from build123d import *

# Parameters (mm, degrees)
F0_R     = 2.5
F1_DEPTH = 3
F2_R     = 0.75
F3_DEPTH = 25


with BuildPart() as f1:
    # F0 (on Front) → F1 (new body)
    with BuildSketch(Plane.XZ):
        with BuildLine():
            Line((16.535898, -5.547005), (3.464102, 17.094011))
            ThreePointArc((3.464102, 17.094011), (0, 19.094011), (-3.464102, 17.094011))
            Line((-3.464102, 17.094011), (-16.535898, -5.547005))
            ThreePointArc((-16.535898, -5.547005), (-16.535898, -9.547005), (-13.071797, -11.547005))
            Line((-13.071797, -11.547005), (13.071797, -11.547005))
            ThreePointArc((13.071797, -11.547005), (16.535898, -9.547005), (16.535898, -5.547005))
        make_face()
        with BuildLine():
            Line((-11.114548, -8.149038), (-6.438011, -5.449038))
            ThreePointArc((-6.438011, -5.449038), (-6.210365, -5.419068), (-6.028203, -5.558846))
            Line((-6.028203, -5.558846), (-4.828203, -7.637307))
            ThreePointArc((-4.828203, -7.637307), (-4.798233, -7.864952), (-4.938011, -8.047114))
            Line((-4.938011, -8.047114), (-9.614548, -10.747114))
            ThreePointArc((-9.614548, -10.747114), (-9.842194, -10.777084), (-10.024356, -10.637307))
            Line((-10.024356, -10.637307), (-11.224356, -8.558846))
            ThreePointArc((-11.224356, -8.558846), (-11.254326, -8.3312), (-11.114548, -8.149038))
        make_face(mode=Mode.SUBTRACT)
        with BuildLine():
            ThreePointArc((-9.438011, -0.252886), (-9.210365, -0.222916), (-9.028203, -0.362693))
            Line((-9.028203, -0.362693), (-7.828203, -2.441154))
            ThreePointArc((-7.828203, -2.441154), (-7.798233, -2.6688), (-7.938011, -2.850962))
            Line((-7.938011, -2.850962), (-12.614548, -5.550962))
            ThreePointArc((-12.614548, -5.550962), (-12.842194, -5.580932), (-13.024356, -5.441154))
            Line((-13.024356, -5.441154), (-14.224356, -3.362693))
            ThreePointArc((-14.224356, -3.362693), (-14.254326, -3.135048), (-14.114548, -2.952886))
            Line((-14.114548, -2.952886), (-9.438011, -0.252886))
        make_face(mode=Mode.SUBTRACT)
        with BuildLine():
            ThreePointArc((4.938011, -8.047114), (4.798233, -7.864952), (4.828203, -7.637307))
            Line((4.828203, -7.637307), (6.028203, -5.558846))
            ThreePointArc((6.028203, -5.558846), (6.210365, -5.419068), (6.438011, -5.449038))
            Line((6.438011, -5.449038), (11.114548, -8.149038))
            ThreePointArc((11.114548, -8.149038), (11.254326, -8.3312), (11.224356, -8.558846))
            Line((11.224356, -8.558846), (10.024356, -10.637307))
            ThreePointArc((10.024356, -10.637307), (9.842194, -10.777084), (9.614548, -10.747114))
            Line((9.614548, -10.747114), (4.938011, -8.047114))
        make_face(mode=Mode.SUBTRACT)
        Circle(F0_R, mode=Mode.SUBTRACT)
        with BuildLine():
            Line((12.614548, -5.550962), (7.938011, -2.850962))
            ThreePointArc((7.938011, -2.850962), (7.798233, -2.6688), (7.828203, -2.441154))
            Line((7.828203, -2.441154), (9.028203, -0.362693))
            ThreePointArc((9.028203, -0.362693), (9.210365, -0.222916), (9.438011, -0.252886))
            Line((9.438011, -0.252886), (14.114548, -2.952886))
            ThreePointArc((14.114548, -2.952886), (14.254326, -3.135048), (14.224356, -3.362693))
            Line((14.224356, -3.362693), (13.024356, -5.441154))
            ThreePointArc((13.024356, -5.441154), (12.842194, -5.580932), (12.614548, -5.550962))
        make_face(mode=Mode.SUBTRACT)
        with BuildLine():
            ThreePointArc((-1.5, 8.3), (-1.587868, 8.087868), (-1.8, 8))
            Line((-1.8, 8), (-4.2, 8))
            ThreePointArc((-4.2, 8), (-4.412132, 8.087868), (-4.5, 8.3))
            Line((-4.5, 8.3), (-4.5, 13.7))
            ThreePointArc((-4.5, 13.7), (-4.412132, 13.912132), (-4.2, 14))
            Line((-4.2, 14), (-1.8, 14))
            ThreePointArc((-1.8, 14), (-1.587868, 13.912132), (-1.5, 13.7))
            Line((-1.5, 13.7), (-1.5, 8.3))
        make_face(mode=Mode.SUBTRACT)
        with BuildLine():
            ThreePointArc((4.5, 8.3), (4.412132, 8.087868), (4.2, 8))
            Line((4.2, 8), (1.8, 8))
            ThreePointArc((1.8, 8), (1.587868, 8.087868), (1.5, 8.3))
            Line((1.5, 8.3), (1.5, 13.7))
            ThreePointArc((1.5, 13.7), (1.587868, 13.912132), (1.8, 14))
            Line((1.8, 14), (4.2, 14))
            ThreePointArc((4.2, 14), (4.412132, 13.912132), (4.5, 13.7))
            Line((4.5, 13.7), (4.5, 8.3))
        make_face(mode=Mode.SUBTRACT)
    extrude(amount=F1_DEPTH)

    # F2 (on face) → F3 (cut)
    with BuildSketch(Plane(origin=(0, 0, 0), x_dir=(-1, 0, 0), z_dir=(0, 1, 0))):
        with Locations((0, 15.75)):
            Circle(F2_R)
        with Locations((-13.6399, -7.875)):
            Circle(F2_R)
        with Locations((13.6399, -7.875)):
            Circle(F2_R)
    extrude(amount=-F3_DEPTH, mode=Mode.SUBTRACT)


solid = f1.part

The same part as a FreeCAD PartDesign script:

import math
import FreeCAD as App
import Part
import Sketcher

V = App.Vector
Q = App.Units.Quantity

doc = App.newDocument("Part")
body = doc.addObject("PartDesign::Body", "Body")

sketch1 = body.newObject("Sketcher::SketchObject", "Sketch")
sketch1.AttachmentSupport = (doc.getObject("XZ_Plane"), [""])
sketch1.MapMode = "FlatFace"
sketch1.addGeometry([
    Part.LineSegment(V(16.54, -5.55, 0), V(3.46, 17.09, 0)),
    Part.ArcOfCircle(Part.Circle(V(0, 15.09, 0), V(0, 0, 1), 4), math.radians(30), math.radians(150)),
    Part.LineSegment(V(-3.46, 17.09, 0), V(-16.54, -5.55, 0)),
    Part.ArcOfCircle(Part.Circle(V(-13.07, -7.55, 0), V(0, 0, 1), 4), math.radians(150), math.radians(270)),
    Part.LineSegment(V(-13.07, -11.55, 0), V(13.07, -11.55, 0)),
    Part.ArcOfCircle(Part.Circle(V(13.07, -7.55, 0), V(0, 0, 1), 4), math.radians(-90), math.radians(30)),
    Part.ArcOfCircle(Part.Circle(V(-10.96, -8.41, 0), V(0, 0, 1), 0.3), math.radians(120), math.radians(210)),
    Part.LineSegment(V(-11.11, -8.15, 0), V(-6.44, -5.45, 0)),
    Part.ArcOfCircle(Part.Circle(V(-6.29, -5.71, 0), V(0, 0, 1), 0.3), math.radians(30), math.radians(120)),
    Part.LineSegment(V(-6.03, -5.56, 0), V(-4.83, -7.64, 0)),
    Part.ArcOfCircle(Part.Circle(V(-5.09, -7.79, 0), V(0, 0, 1), 0.3), math.radians(-60), math.radians(30)),
    Part.LineSegment(V(-4.94, -8.05, 0), V(-9.61, -10.75, 0)),
    Part.ArcOfCircle(Part.Circle(V(-9.76, -10.49, 0), V(0, 0, 1), 0.3), math.radians(-150), math.radians(-60)),
    Part.LineSegment(V(-10.02, -10.64, 0), V(-11.22, -8.56, 0)),
    Part.LineSegment(V(-14.11, -2.95, 0), V(-9.44, -0.25, 0)),
    Part.ArcOfCircle(Part.Circle(V(-9.29, -0.51, 0), V(0, 0, 1), 0.3), math.radians(30), math.radians(120)),
    Part.LineSegment(V(-9.03, -0.36, 0), V(-7.83, -2.44, 0)),
    Part.ArcOfCircle(Part.Circle(V(-8.09, -2.59, 0), V(0, 0, 1), 0.3), math.radians(-60), math.radians(30)),
    Part.LineSegment(V(-7.94, -2.85, 0), V(-12.61, -5.55, 0)),
    Part.ArcOfCircle(Part.Circle(V(-12.76, -5.29, 0), V(0, 0, 1), 0.3), math.radians(-150), math.radians(-60)),
    Part.LineSegment(V(-13.02, -5.44, 0), V(-14.22, -3.36, 0)),
    Part.ArcOfCircle(Part.Circle(V(-13.96, -3.21, 0), V(0, 0, 1), 0.3), math.radians(120), math.radians(210)),
    Part.LineSegment(V(9.61, -10.75, 0), V(4.94, -8.05, 0)),
    Part.ArcOfCircle(Part.Circle(V(5.09, -7.79, 0), V(0, 0, 1), 0.3), math.radians(150), math.radians(240)),
    Part.LineSegment(V(4.83, -7.64, 0), V(6.03, -5.56, 0)),
    Part.ArcOfCircle(Part.Circle(V(6.29, -5.71, 0), V(0, 0, 1), 0.3), math.radians(60), math.radians(150)),
    Part.LineSegment(V(6.44, -5.45, 0), V(11.11, -8.15, 0)),
    Part.ArcOfCircle(Part.Circle(V(10.96, -8.41, 0), V(0, 0, 1), 0.3), math.radians(-30), math.radians(60)),
    Part.LineSegment(V(11.22, -8.56, 0), V(10.02, -10.64, 0)),
    Part.ArcOfCircle(Part.Circle(V(9.76, -10.49, 0), V(0, 0, 1), 0.3), math.radians(-120), math.radians(-30)),
    Part.Circle(V(0, 0, 0), V(0, 0, 1), 2.5),
    Part.ArcOfCircle(Part.Circle(V(12.76, -5.29, 0), V(0, 0, 1), 0.3), math.radians(-120), math.radians(-30)),
    Part.LineSegment(V(12.61, -5.55, 0), V(7.94, -2.85, 0)),
    Part.ArcOfCircle(Part.Circle(V(8.09, -2.59, 0), V(0, 0, 1), 0.3), math.radians(150), math.radians(240)),
    Part.LineSegment(V(7.83, -2.44, 0), V(9.03, -0.36, 0)),
    Part.ArcOfCircle(Part.Circle(V(9.29, -0.51, 0), V(0, 0, 1), 0.3), math.radians(60), math.radians(150)),
    Part.LineSegment(V(9.44, -0.25, 0), V(14.11, -2.95, 0)),
    Part.ArcOfCircle(Part.Circle(V(13.96, -3.21, 0), V(0, 0, 1), 0.3), math.radians(-30), math.radians(60)),
    Part.LineSegment(V(14.22, -3.36, 0), V(13.02, -5.44, 0)),
    Part.LineSegment(V(-1.5, 13.7, 0), V(-1.5, 8.3, 0)),
    Part.ArcOfCircle(Part.Circle(V(-1.8, 8.3, 0), V(0, 0, 1), 0.3), math.radians(-90), math.radians(0)),
    Part.LineSegment(V(-1.8, 8, 0), V(-4.2, 8, 0)),
    Part.ArcOfCircle(Part.Circle(V(-4.2, 8.3, 0), V(0, 0, 1), 0.3), math.radians(-180), math.radians(-90)),
    Part.LineSegment(V(-4.5, 8.3, 0), V(-4.5, 13.7, 0)),
    Part.ArcOfCircle(Part.Circle(V(-4.2, 13.7, 0), V(0, 0, 1), 0.3), math.radians(90), math.radians(180)),
    Part.LineSegment(V(-4.2, 14, 0), V(-1.8, 14, 0)),
    Part.ArcOfCircle(Part.Circle(V(-1.8, 13.7, 0), V(0, 0, 1), 0.3), math.radians(0), math.radians(90)),
    Part.LineSegment(V(4.5, 13.7, 0), V(4.5, 8.3, 0)),
    Part.ArcOfCircle(Part.Circle(V(4.2, 8.3, 0), V(0, 0, 1), 0.3), math.radians(-90), math.radians(0)),
    Part.LineSegment(V(4.2, 8, 0), V(1.8, 8, 0)),
    Part.ArcOfCircle(Part.Circle(V(1.8, 8.3, 0), V(0, 0, 1), 0.3), math.radians(-180), math.radians(-90)),
    Part.LineSegment(V(1.5, 8.3, 0), V(1.5, 13.7, 0)),
    Part.ArcOfCircle(Part.Circle(V(1.8, 13.7, 0), V(0, 0, 1), 0.3), math.radians(90), math.radians(180)),
    Part.LineSegment(V(1.8, 14, 0), V(4.2, 14, 0)),
    Part.ArcOfCircle(Part.Circle(V(4.2, 13.7, 0), V(0, 0, 1), 0.3), math.radians(0), math.radians(90)),
], False)
sketch1.addConstraint([
    Sketcher.Constraint("Tangent", 0, 2, 1, 1),
    Sketcher.Constraint("Tangent", 1, 2, 2, 1),
    Sketcher.Constraint("Tangent", 2, 2, 3, 1),
    Sketcher.Constraint("Tangent", 3, 2, 4, 1),
    Sketcher.Constraint("Tangent", 4, 2, 5, 1),
    Sketcher.Constraint("Tangent", 5, 2, 0, 1),
    Sketcher.Constraint("Tangent", 6, 1, 7, 1),
    Sketcher.Constraint("Tangent", 7, 2, 8, 2),
    Sketcher.Constraint("Tangent", 8, 1, 9, 1),
    Sketcher.Constraint("Tangent", 9, 2, 10, 2),
    Sketcher.Constraint("Tangent", 10, 1, 11, 1),
    Sketcher.Constraint("Tangent", 11, 2, 12, 2),
    Sketcher.Constraint("Coincident", 12, 1, 13, 1),
    Sketcher.Constraint("Tangent", 13, 2, 6, 2),
    Sketcher.Constraint("Tangent", 14, 2, 15, 2),
    Sketcher.Constraint("Coincident", 15, 1, 16, 1),
    Sketcher.Constraint("Tangent", 16, 2, 17, 2),
    Sketcher.Constraint("Tangent", 17, 1, 18, 1),
    Sketcher.Constraint("Tangent", 18, 2, 19, 2),
    Sketcher.Constraint("Tangent", 19, 1, 20, 1),
    Sketcher.Constraint("Tangent", 20, 2, 21, 2),
    Sketcher.Constraint("Tangent", 21, 1, 14, 1),
    Sketcher.Constraint("Tangent", 22, 2, 23, 2),
    Sketcher.Constraint("Tangent", 23, 1, 24, 1),
    Sketcher.Constraint("Tangent", 24, 2, 25, 2),
    Sketcher.Constraint("Tangent", 25, 1, 26, 1),
    Sketcher.Constraint("Tangent", 26, 2, 27, 2),
    Sketcher.Constraint("Tangent", 27, 1, 28, 1),
    Sketcher.Constraint("Coincident", 28, 2, 29, 2),
    Sketcher.Constraint("Tangent", 29, 1, 22, 1),
    Sketcher.Constraint("Tangent", 31, 1, 32, 1),
    Sketcher.Constraint("Tangent", 32, 2, 33, 2),
    Sketcher.Constraint("Tangent", 33, 1, 34, 1),
    Sketcher.Constraint("Coincident", 34, 2, 35, 2),
    Sketcher.Constraint("Tangent", 35, 1, 36, 1),
    Sketcher.Constraint("Tangent", 36, 2, 37, 2),
    Sketcher.Constraint("Tangent", 37, 1, 38, 1),
    Sketcher.Constraint("Tangent", 38, 2, 31, 2),
    Sketcher.Constraint("Tangent", 39, 2, 40, 2),
    Sketcher.Constraint("Tangent", 40, 1, 41, 1),
    Sketcher.Constraint("Tangent", 41, 2, 42, 2),
    Sketcher.Constraint("Tangent", 42, 1, 43, 1),
    Sketcher.Constraint("Tangent", 43, 2, 44, 2),
    Sketcher.Constraint("Tangent", 44, 1, 45, 1),
    Sketcher.Constraint("Tangent", 45, 2, 46, 2),
    Sketcher.Constraint("Tangent", 46, 1, 39, 1),
    Sketcher.Constraint("Tangent", 47, 2, 48, 2),
    Sketcher.Constraint("Tangent", 48, 1, 49, 1),
    Sketcher.Constraint("Tangent", 49, 2, 50, 2),
    Sketcher.Constraint("Tangent", 50, 1, 51, 1),
    Sketcher.Constraint("Tangent", 51, 2, 52, 2),
    Sketcher.Constraint("Tangent", 52, 1, 53, 1),
    Sketcher.Constraint("Tangent", 53, 2, 54, 2),
    Sketcher.Constraint("Tangent", 54, 1, 47, 1),
    Sketcher.Constraint("Horizontal", 4),
    Sketcher.Constraint("Vertical", 39),
    Sketcher.Constraint("Horizontal", 41),
    Sketcher.Constraint("Vertical", 43),
    Sketcher.Constraint("Horizontal", 45),
    Sketcher.Constraint("Vertical", 47),
    Sketcher.Constraint("Horizontal", 49),
    Sketcher.Constraint("Vertical", 51),
    Sketcher.Constraint("Horizontal", 53),
    Sketcher.Constraint("Coincident", 30, 3, -1, 1),
    Sketcher.Constraint("Equal", 1, 3),
    Sketcher.Constraint("Equal", 3, 5),
    Sketcher.Constraint("Equal", 6, 8),
    Sketcher.Constraint("Equal", 8, 10),
    Sketcher.Constraint("Equal", 10, 12),
    Sketcher.Constraint("Equal", 12, 15),
    Sketcher.Constraint("Equal", 15, 17),
    Sketcher.Constraint("Equal", 17, 19),
    Sketcher.Constraint("Equal", 19, 21),
    Sketcher.Constraint("Equal", 21, 23),
    Sketcher.Constraint("Equal", 23, 25),
    Sketcher.Constraint("Equal", 25, 27),
    Sketcher.Constraint("Equal", 27, 29),
    Sketcher.Constraint("Equal", 29, 31),
    Sketcher.Constraint("Equal", 31, 33),
    Sketcher.Constraint("Equal", 33, 35),
    Sketcher.Constraint("Equal", 35, 37),
    Sketcher.Constraint("Equal", 37, 40),
    Sketcher.Constraint("Equal", 40, 42),
    Sketcher.Constraint("Equal", 42, 44),
    Sketcher.Constraint("Equal", 44, 46),
    Sketcher.Constraint("Equal", 46, 48),
    Sketcher.Constraint("Equal", 48, 50),
    Sketcher.Constraint("Equal", 50, 52),
    Sketcher.Constraint("Equal", 52, 54),
    Sketcher.Constraint("Symmetric", 10, 3, 23, 3, -2),
    Sketcher.Constraint("Symmetric", 8, 3, 25, 3, -2),
    Sketcher.Constraint("Symmetric", 6, 3, 27, 3, -2),
    Sketcher.Constraint("Symmetric", 12, 3, 29, 3, -2),
    Sketcher.Constraint("Symmetric", 19, 3, 31, 3, -2),
    Sketcher.Constraint("Symmetric", 17, 3, 33, 3, -2),
    Sketcher.Constraint("Symmetric", 15, 3, 35, 3, -2),
    Sketcher.Constraint("Symmetric", 21, 3, 37, 3, -2),
    Sketcher.Constraint("Symmetric", 42, 3, 48, 3, -2),
    Sketcher.Constraint("Symmetric", 46, 3, 52, 3, -2),
    Sketcher.Constraint("Symmetric", 0, 2, 1, 2, -2),
    Sketcher.Constraint("Perpendicular", 0, 7),
    Sketcher.Constraint("Perpendicular", 7, 9),
    Sketcher.Constraint("Perpendicular", 9, 11),
    Sketcher.Constraint("Perpendicular", 11, 13),
    Sketcher.Constraint("Perpendicular", 13, 14),
    Sketcher.Constraint("Perpendicular", 14, 16),
    Sketcher.Constraint("Perpendicular", 16, 18),
    Sketcher.Constraint("Perpendicular", 18, 20),
    Sketcher.Constraint("Horizontal", 12, 1, 28, 2),
    Sketcher.Constraint("Horizontal", 15, 1, 34, 2),
    Sketcher.Constraint("Equal", 9, 13),
    Sketcher.Constraint("Equal", 11, 14),
    Sketcher.Constraint("Equal", 13, 16),
    Sketcher.Constraint("Equal", 16, 20),
    Sketcher.Constraint("Diameter", 30, Q("5 mm")),
    Sketcher.Constraint("Radius", 1, Q("4.000001 mm")),
    Sketcher.Constraint("Radius", 6, Q("0.3 mm")),
    Sketcher.Constraint("Angle", 0, Q("119.999999 deg")),
    Sketcher.Constraint("DistanceX", 41, 2, 41, 1, Q("2.4 mm")),
    Sketcher.Constraint("DistanceY", 39, 2, 39, 1, Q("5.4 mm")),
    Sketcher.Constraint("DistanceY", -1, 1, 40, 1, Q("8 mm")),
    Sketcher.Constraint("Distance", 7, Q("5.4 mm")),
    Sketcher.Constraint("Distance", 9, Q("2.4 mm")),
    Sketcher.Constraint("DistanceX", 40, 3, -1, 1, Q("1.8 mm")),
    Sketcher.Constraint("DistanceX", -1, 1, 5, 2, Q("16.535898 mm")),
    Sketcher.Constraint("DistanceY", -1, 1, 1, 3, Q("15.09401 mm")),
    Sketcher.Constraint("DistanceX", 8, 3, -1, 1, Q("6.288011 mm")),
    Sketcher.Constraint("DistanceX", 15, 3, -1, 1, Q("9.288011 mm")),
    Sketcher.Constraint("DistanceY", 25, 1, -1, 1, Q("5.449038 mm")),
    Sketcher.Constraint("DistanceY", 31, 1, -1, 1, Q("5.550962 mm")),
])
pad1 = body.newObject("PartDesign::Pad", "Pad")
pad1.Profile = sketch1
pad1.Length = 3

sketch2 = body.newObject("Sketcher::SketchObject", "Sketch001")
sketch2.AttachmentSupport = (doc.getObject("XZ_Plane"), [""])
sketch2.MapMode = "FlatFace"
sketch2.addGeometry([
    Part.Circle(V(0, 15.8, 0), V(0, 0, 1), 0.8),
    Part.Circle(V(13.6, -7.9, 0), V(0, 0, 1), 0.8),
    Part.Circle(V(-13.6, -7.9, 0), V(0, 0, 1), 0.8),
], False)
sketch2.addConstraint([
    Sketcher.Constraint("Equal", 0, 1),
    Sketcher.Constraint("Equal", 1, 2),
    Sketcher.Constraint("Symmetric", 1, 3, 2, 3, -2),
    Sketcher.Constraint("PointOnObject", 0, 3, -2),
    Sketcher.Constraint("Diameter", 0, Q("1.5 mm")),
    Sketcher.Constraint("DistanceY", -1, 1, 0, 3, Q("15.75 mm")),
    Sketcher.Constraint("DistanceY", 1, 3, -1, 1, Q("7.875 mm")),
    Sketcher.Constraint("DistanceX", -1, 1, 1, 3, Q("13.6399 mm")),
])
pocket1 = body.newObject("PartDesign::Pocket", "Pocket")
pocket1.Profile = sketch2
pocket1.Length = 25
pocket1.Reversed = True

doc.recompute()
